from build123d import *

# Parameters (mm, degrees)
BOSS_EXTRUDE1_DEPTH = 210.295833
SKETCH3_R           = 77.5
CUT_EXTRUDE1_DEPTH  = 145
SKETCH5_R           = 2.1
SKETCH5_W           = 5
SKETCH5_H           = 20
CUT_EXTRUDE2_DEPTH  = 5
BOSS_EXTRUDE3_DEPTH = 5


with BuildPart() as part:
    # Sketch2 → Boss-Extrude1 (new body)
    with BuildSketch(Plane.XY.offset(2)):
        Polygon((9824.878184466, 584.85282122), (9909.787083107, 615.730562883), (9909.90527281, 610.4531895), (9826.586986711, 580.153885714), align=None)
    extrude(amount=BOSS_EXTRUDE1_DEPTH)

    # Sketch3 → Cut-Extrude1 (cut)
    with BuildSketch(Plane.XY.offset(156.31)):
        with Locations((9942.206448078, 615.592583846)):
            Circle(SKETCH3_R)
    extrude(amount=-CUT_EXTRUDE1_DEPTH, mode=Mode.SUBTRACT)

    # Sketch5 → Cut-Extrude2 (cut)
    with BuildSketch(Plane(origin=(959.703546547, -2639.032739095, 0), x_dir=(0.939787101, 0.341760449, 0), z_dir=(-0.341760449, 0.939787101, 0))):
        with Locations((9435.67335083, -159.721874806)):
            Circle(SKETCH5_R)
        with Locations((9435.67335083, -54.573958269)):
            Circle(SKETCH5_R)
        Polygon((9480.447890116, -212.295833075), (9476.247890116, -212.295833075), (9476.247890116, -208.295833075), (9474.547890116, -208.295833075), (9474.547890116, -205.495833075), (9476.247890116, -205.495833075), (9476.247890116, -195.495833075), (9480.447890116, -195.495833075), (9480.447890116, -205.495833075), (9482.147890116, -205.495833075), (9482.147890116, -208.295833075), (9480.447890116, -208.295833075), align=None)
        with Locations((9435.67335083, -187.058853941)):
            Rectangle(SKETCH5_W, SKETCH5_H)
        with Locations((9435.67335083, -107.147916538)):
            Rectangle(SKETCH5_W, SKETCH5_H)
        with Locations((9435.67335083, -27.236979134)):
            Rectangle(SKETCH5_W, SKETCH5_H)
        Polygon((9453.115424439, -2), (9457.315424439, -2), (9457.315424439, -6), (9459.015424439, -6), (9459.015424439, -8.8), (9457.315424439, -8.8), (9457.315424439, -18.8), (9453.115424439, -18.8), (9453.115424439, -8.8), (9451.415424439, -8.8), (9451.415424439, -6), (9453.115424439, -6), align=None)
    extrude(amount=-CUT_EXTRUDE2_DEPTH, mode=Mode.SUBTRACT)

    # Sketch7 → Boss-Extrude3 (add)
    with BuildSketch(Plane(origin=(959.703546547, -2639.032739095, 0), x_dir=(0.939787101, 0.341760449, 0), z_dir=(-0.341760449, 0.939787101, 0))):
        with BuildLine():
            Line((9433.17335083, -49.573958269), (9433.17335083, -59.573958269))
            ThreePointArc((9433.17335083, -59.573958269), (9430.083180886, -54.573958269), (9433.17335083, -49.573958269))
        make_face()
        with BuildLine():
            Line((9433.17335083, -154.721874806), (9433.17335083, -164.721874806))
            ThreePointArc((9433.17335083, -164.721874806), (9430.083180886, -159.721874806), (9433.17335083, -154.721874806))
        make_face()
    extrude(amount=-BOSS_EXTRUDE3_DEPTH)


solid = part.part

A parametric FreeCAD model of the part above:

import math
import FreeCAD as App
import Part
import Sketcher
from FreeCAD import Vector


def add_polygon(sketch, points):
    """Adds a closed chain of lines whose ends are joined by coincident constraints."""
    first, n = sketch.GeometryCount, len(points)
    for a, b in zip(points, points[1:] + points[:1]):
        sketch.addGeometry(Part.LineSegment(App.Vector(*a, 0), App.Vector(*b, 0)), False)
    for i in range(n):
        sketch.addConstraint(Sketcher.Constraint("Coincident", first + i, 2, first + (i + 1) % n, 1))

doc = App.newDocument("Part")
body = doc.addObject("PartDesign::Body", "Body")

sketch1 = body.newObject("Sketcher::SketchObject", "Sketch")
sketch1.AttachmentSupport = (doc.getObject("XY_Plane"), [""])
sketch1.MapMode = "FlatFace"
sketch1.AttachmentOffset = App.Placement(Vector(0, 0, 2), App.Rotation())
add_polygon(sketch1, [(9909.787083, 615.730563), (9824.878184, 584.852821), (9826.586987, 580.153886), (9909.905273, 610.45319)])
sketch1.addConstraint([
    Sketcher.Constraint("Perpendicular", 0, 1),
    Sketcher.Constraint("Perpendicular", 1, 2),
    Sketcher.Constraint("Distance", 1, 5.0),
    Sketcher.Constraint("DistanceX", 0, 2, 3, 2, 84.908899),
    Sketcher.Constraint("Distance", 0, 90.349079),
    Sketcher.Constraint("DistanceY", -1, 1, 0, 2, 584.852821),
    Sketcher.Constraint("DistanceY", -1, 1, 2, 2, 610.45319),
    Sketcher.Constraint("DistanceX", -1, 1, 0, 2, 9824.878184),
])
pad1 = body.newObject("PartDesign::Pad", "Pad")
pad1.Profile = sketch1
pad1.Length = 210.295833

sketch2 = body.newObject("Sketcher::SketchObject", "Sketch001")
sketch2.AttachmentSupport = (doc.getObject("XY_Plane"), [""])
sketch2.MapMode = "FlatFace"
sketch2.AttachmentOffset = App.Placement(Vector(0, 0, 156.31), App.Rotation())
sketch2.addGeometry(Part.Circle(Vector(9942.206448, 615.592584, 0), Vector(0, 0, 1), 77.5), False)
sketch2.addConstraint([
    Sketcher.Constraint("Diameter", 0, 155.0),
    Sketcher.Constraint("DistanceX", -1, 1, 0, 3, 9942.206448),
    Sketcher.Constraint("DistanceY", -1, 1, 0, 3, 615.592584),
])
pocket1 = body.newObject("PartDesign::Pocket", "Pocket")
pocket1.Profile = sketch2
pocket1.Length = 145

sketch3 = body.newObject("Sketcher::SketchObject", "Sketch002")
sketch3.Placement = App.Placement(Vector(959.703547, -2639.032739, 0), App.Rotation(Vector(0.939787101, 0.341760449, 0), Vector(0, 0, -1), Vector(-0.341760449, 0.939787101, 0), "ZXY"))
sketch3.addGeometry(Part.Circle(Vector(9435.673348, -159.721875, 0), Vector(0, 0, 1), 2.1), False)
sketch3.addGeometry(Part.Circle(Vector(9435.673348, -54.573958, 0), Vector(0, 0, 1), 2.1), False)
add_polygon(sketch3, [(9476.247887, -212.295833), (9480.447887, -212.295833), (9480.447887, -208.295833), (9482.147887, -208.295833), (9482.147887, -205.495833), (9480.447887, -205.495833), (9480.447887, -195.495833), (9476.247887, -195.495833), (9476.247887, -205.495833), (9474.547887, -205.495833), (9474.547887, -208.295833), (9476.247887, -208.295833)])
add_polygon(sketch3, [(9433.173348, -177.058854), (9433.173348, -197.058854), (9438.173348, -197.058854), (9438.173348, -177.058854)])
add_polygon(sketch3, [(9433.173348, -97.147916), (9433.173348, -117.147916), (9438.173348, -117.147916), (9438.173348, -97.147916)])
add_polygon(sketch3, [(9433.173348, -17.236979), (9433.173348, -37.236979), (9438.173348, -37.236979), (9438.173348, -17.236979)])
add_polygon(sketch3, [(9457.315422, -2), (9453.115422, -2), (9453.115422, -6), (9451.415422, -6), (9451.415422, -8.8), (9453.115422, -8.8), (9453.115422, -18.8), (9457.315422, -18.8), (9457.315422, -8.8), (9459.015422, -8.8), (9459.015422, -6), (9457.315422, -6)])
sketch3.addConstraint([
    Sketcher.Constraint("Horizontal", 2),
    Sketcher.Constraint("Vertical", 3),
    Sketcher.Constraint("Horizontal", 4),
    Sketcher.Constraint("Vertical", 5),
    Sketcher.Constraint("Horizontal", 6),
    Sketcher.Constraint("Vertical", 7),
    Sketcher.Constraint("Horizontal", 8),
    Sketcher.Constraint("Vertical", 9),
    Sketcher.Constraint("Horizontal", 10),
    Sketcher.Constraint("Vertical", 11),
    Sketcher.Constraint("Horizontal", 12),
    Sketcher.Constraint("Vertical", 13),
    Sketcher.Constraint("Vertical", 14),
    Sketcher.Constraint("Horizontal", 15),
    Sketcher.Constraint("Vertical", 16),
    Sketcher.Constraint("Horizontal", 17),
    Sketcher.Constraint("Vertical", 18),
    Sketcher.Constraint("Horizontal", 19),
    Sketcher.Constraint("Vertical", 20),
    Sketcher.Constraint("Horizontal", 21),
    Sketcher.Constraint("Vertical", 22),
    Sketcher.Constraint("Horizontal", 23),
    Sketcher.Constraint("Vertical", 24),
    Sketcher.Constraint("Horizontal", 25),
    Sketcher.Constraint("Horizontal", 26),
    Sketcher.Constraint("Vertical", 27),
    Sketcher.Constraint("Horizontal", 28),
    Sketcher.Constraint("Vertical", 29),
    Sketcher.Constraint("Horizontal", 30),
    Sketcher.Constraint("Vertical", 31),
    Sketcher.Constraint("Horizontal", 32),
    Sketcher.Constraint("Vertical", 33),
    Sketcher.Constraint("Horizontal", 34),
    Sketcher.Constraint("Vertical", 35),
    Sketcher.Constraint("Horizontal", 36),
    Sketcher.Constraint("Vertical", 37),
    Sketcher.Constraint("Equal", 0, 1),
    Sketcher.Constraint("Horizontal", 6, 2, 9, 2),
    Sketcher.Constraint("Horizontal", 4, 2, 11, 2),
    Sketcher.Constraint("Horizontal", 30, 2, 33, 2),
    Sketcher.Constraint("Horizontal", 28, 2, 35, 2),
    Sketcher.Constraint("Vertical", 0, 3, 1, 3),
    Sketcher.Constraint("Vertical", 3, 2, 6, 2),
    Sketcher.Constraint("Vertical", 9, 2, 12, 2),
    Sketcher.Constraint("Vertical", 17, 2, 18, 2),
    Sketcher.Constraint("Vertical", 16, 2, 19, 2),
    Sketcher.Constraint("Vertical", 21, 2, 22, 2),
    Sketcher.Constraint("Vertical", 20, 2, 23, 2),
    Sketcher.Constraint("Vertical", 27, 2, 30, 2),
    Sketcher.Constraint("Vertical", 33, 2, 36, 2),
    Sketcher.Constraint("Equal", 6, 10),
    Sketcher.Constraint("Equal", 8, 26),
    Sketcher.Constraint("Equal", 12, 28),
    Sketcher.Constraint("Equal", 30, 34),
    Sketcher.Constraint("Equal", 16, 18),
    Sketcher.Constraint("Equal", 20, 22),
    Sketcher.Constraint("Equal", 13, 27),
    Sketcher.Constraint("Equal", 11, 29),
    Sketcher.Constraint("Equal", 9, 31),
    Sketcher.Constraint("Diameter", 0, 4.2),
    Sketcher.Constraint("DistanceX", 15, 1, 15, 2, 5.0),
    Sketcher.Constraint("DistanceY", 3, 1, 3, 2, 4.0),
    Sketcher.Constraint("DistanceY", 7, 1, 7, 2, 10.0),
    Sketcher.Constraint("DistanceY", 14, 2, 14, 1, 20.0),
    Sketcher.Constraint("DistanceX", 2, 1, 2, 2, 4.2),
    Sketcher.Constraint("DistanceX", 4, 1, 4, 2, 1.7),
    Sketcher.Constraint("DistanceY", 5, 1, 5, 2, 2.8),
    Sketcher.Constraint("DistanceY", 26, 2, -1, 1, 2.0),
    Sketcher.Constraint("DistanceX", 14, 2, 0, 3, 2.5),
    Sketcher.Constraint("DistanceX", -1, 1, 0, 3, 9435.673348),
    Sketcher.Constraint("DistanceY", 1, 3, -1, 1, 54.573958),
    Sketcher.Constraint("DistanceY", 22, 2, -1, 1, 37.236979),
    Sketcher.Constraint("DistanceX", -1, 1, 26, 2, 9453.115422),
    Sketcher.Constraint("DistanceX", 0, 3, 2, 2, 44.774539),
    Sketcher.Constraint("DistanceY", 2, 2, 0, 3, 52.573958),
    Sketcher.Constraint("DistanceY", 14, 2, 0, 3, 37.336979),
    Sketcher.Constraint("DistanceY", 0, 3, 18, 2, 42.573958),
    Sketcher.Constraint("DistanceY", 18, 2, 1, 3, 62.573958),
])
pocket2 = body.newObject("PartDesign::Pocket", "Pocket001")
pocket2.Profile = sketch3
pocket2.Length = 5

sketch4 = body.newObject("Sketcher::SketchObject", "Sketch003")
sketch4.Placement = App.Placement(Vector(959.703547, -2639.032739, 0), App.Rotation(Vector(0.939787101, 0.341760449, 0), Vector(0, 0, -1), Vector(-0.341760449, 0.939787101, 0), "ZXY"))
sketch4.addGeometry([
    Part.LineSegment(Vector(9433.173348, -59.573958, 0), Vector(9433.173348, -49.573958, 0)),
    Part.ArcOfCircle(Part.Circle(Vector(9435.673348, -54.573958, 0), Vector(0, 0, 1), 5.59017), math.radians(116.565051), math.radians(243.434949)),
    Part.LineSegment(Vector(9433.173348, -164.721875, 0), Vector(9433.173348, -154.721875, 0)),
    Part.ArcOfCircle(Part.Circle(Vector(9435.673348, -159.721875, 0), Vector(0, 0, 1), 5.59017), math.radians(116.565051), math.radians(243.434949)),
], False)
sketch4.addConstraint([
    Sketcher.Constraint("Coincident", 0, 1, 1, 2),
    Sketcher.Constraint("Coincident", 1, 1, 0, 2),
    Sketcher.Constraint("Coincident", 2, 1, 3, 2),
    Sketcher.Constraint("Coincident", 3, 1, 2, 2),
    Sketcher.Constraint("Vertical", 0),
    Sketcher.Constraint("Vertical", 2),
    Sketcher.Constraint("Equal", 1, 3),
    Sketcher.Constraint("Vertical", 1, 3, 3, 3),
    Sketcher.Constraint("Vertical", 1, 1, 2, 1),
    Sketcher.Constraint("DistanceY", 0, 1, 0, 2, 10.0),
    Sketcher.Constraint("DistanceX", 0, 1, 1, 3, 2.5),
    Sketcher.Constraint("DistanceX", -1, 1, 1, 3, 9435.673348),
    Sketcher.Constraint("DistanceY", 1, 3, -1, 1, 54.573958),
    Sketcher.Constraint("DistanceY", 3, 3, -1, 1, 159.721875),
])
pad2 = body.newObject("PartDesign::Pad", "Pad001")
pad2.Profile = sketch4
pad2.Length = 5
pad2.Reversed = True

doc.recompute()
